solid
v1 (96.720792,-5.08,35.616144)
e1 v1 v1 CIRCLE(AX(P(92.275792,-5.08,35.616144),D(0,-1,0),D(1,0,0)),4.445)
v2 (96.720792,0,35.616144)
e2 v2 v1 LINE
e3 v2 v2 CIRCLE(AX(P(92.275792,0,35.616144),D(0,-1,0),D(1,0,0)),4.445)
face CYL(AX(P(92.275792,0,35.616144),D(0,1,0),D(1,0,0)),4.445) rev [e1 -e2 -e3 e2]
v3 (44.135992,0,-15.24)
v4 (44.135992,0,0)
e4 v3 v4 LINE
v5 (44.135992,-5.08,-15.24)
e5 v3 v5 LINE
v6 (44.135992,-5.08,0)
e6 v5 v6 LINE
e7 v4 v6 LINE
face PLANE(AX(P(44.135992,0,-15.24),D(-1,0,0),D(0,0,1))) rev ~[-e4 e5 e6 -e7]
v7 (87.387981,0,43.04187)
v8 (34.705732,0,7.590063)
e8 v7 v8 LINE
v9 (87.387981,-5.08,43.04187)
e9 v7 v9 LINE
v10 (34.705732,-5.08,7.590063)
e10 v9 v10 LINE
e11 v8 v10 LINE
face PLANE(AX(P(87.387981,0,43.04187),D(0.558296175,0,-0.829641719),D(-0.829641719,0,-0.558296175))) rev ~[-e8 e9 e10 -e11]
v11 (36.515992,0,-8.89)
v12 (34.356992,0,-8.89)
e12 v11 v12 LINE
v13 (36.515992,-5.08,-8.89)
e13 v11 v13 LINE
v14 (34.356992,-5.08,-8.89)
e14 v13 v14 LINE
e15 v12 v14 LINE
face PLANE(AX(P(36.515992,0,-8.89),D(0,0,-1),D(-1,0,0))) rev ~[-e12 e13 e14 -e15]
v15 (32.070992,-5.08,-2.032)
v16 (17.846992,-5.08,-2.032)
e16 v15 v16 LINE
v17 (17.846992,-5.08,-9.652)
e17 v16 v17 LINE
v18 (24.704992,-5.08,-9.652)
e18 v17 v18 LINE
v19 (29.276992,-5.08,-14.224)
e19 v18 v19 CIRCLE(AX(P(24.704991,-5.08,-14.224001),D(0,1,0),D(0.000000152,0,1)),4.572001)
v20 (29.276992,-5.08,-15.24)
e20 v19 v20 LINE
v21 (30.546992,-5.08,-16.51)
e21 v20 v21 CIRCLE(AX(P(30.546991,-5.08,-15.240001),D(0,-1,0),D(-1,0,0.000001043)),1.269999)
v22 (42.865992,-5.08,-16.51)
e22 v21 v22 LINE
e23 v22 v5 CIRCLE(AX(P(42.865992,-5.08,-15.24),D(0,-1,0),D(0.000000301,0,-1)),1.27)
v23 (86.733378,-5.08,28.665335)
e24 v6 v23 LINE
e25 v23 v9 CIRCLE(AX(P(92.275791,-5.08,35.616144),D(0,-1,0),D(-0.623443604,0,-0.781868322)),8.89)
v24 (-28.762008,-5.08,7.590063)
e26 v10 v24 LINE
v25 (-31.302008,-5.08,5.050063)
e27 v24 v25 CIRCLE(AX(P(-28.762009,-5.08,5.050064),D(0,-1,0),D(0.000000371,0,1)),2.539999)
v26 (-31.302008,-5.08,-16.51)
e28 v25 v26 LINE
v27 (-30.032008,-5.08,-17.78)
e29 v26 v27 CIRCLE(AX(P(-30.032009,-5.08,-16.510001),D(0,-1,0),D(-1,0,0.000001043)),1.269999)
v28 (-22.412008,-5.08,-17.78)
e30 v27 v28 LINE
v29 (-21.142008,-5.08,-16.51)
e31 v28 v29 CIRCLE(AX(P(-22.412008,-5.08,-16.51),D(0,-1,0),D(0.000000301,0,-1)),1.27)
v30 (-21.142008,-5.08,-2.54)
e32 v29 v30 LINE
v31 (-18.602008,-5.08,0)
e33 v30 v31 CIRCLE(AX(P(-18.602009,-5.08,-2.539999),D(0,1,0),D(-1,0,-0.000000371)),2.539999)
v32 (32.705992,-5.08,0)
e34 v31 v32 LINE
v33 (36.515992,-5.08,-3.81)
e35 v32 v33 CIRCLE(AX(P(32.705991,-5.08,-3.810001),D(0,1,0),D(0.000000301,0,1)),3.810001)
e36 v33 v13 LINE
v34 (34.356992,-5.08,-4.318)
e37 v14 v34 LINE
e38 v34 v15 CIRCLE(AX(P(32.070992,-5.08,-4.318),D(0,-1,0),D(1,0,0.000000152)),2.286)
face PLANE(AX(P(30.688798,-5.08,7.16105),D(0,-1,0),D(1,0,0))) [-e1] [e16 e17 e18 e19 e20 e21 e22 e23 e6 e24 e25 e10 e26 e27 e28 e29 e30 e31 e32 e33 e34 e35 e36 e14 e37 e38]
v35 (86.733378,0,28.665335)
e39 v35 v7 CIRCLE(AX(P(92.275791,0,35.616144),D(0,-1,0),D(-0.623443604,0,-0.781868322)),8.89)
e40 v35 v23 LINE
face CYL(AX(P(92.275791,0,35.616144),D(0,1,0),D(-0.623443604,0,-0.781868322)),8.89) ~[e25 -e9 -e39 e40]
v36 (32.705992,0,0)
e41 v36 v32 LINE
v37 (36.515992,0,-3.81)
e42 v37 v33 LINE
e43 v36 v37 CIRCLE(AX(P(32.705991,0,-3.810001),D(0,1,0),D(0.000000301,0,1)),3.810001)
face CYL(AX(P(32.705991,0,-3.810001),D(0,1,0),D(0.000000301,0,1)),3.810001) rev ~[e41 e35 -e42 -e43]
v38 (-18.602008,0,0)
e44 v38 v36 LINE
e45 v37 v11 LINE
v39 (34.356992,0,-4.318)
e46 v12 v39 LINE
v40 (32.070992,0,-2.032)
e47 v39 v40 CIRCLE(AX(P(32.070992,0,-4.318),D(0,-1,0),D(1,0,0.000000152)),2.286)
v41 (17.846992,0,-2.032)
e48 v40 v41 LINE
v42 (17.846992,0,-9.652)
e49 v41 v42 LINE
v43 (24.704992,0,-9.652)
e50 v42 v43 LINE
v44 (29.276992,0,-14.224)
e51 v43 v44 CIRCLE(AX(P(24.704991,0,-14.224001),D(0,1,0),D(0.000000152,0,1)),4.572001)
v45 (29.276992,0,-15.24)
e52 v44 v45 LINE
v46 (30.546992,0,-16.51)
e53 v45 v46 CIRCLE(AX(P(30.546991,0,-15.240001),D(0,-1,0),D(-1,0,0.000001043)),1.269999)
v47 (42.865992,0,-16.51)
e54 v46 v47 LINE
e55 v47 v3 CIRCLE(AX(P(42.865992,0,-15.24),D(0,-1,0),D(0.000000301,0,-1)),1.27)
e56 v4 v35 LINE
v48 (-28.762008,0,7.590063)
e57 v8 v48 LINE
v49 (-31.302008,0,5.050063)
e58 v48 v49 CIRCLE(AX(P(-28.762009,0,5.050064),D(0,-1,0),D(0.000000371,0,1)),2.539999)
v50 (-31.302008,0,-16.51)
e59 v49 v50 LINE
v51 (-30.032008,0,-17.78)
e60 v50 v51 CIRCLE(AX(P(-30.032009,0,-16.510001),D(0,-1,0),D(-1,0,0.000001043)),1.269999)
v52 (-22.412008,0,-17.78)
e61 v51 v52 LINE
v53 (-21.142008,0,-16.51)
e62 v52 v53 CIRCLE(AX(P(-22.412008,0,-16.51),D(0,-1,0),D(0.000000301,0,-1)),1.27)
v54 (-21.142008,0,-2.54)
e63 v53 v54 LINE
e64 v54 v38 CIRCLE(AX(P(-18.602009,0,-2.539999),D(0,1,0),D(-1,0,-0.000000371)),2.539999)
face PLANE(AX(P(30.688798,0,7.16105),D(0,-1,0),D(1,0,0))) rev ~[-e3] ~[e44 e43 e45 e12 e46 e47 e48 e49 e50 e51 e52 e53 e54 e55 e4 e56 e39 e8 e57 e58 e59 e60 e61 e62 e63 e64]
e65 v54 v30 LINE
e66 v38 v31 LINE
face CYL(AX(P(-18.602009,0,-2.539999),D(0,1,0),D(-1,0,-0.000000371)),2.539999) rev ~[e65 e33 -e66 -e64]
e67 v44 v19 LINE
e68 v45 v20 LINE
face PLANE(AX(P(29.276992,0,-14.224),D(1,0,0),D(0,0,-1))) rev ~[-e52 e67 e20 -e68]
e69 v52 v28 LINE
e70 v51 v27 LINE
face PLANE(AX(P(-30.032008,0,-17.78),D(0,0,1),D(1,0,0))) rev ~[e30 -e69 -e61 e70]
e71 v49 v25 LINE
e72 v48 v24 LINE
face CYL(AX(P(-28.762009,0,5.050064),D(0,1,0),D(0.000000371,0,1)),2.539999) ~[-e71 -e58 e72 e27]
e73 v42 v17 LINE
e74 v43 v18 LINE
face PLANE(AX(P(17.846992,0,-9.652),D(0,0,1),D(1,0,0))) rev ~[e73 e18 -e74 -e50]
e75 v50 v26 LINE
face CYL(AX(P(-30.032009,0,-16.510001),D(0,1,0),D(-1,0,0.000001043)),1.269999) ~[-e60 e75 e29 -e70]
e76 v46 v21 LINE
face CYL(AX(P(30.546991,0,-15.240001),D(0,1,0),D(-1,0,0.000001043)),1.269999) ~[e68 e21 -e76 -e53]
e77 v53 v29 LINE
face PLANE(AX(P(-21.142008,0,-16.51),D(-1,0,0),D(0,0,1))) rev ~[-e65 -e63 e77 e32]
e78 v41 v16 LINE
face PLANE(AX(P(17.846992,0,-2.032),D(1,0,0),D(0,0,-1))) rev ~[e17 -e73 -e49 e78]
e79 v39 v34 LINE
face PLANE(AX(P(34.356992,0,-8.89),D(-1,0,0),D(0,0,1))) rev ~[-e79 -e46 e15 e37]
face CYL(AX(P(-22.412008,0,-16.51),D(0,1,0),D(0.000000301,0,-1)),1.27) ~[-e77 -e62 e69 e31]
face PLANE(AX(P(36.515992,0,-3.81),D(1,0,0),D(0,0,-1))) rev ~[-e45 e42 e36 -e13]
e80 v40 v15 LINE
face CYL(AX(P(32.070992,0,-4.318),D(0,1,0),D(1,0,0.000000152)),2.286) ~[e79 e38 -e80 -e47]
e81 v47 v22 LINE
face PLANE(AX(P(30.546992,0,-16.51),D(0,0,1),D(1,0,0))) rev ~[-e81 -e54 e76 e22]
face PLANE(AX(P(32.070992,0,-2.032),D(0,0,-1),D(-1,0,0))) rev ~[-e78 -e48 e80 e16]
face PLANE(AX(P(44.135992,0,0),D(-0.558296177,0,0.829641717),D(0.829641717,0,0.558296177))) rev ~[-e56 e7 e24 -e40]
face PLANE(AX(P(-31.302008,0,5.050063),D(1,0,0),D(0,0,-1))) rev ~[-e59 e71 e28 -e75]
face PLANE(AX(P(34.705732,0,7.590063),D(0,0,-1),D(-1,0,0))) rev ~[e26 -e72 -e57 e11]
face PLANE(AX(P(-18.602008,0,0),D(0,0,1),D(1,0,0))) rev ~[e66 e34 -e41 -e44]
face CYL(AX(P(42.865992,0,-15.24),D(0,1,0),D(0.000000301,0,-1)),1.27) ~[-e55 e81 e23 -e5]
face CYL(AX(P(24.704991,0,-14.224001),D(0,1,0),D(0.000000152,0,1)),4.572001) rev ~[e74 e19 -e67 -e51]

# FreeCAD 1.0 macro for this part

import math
import FreeCAD as App
import Part
import Sketcher
Q = App.Units.Quantity

doc = App.newDocument("Part")
body = doc.addObject("PartDesign::Body", "Body")

# Sketch on XZ plane
sketch1 = body.newObject("Sketcher::SketchObject", "Sketch")
sketch1.AttachmentSupport = (doc.getObject("XZ_Plane"), [""])
sketch1.MapMode = "FlatFace"
sketch1.addGeometry([
    Part.ArcOfCircle(Part.Circle(App.Vector(-18.6, -2.5, 0), App.Vector(0, 0, 1), 2.5), math.radians(90), math.radians(180)),  # 0
    Part.LineSegment(App.Vector(-18.6, 0, 0), App.Vector(32.7, 0, 0)),  # 1
    Part.ArcOfCircle(Part.Circle(App.Vector(32.7, -3.8, 0), App.Vector(0, 0, 1), 3.8), math.radians(0), math.radians(90)),  # 2
    Part.LineSegment(App.Vector(36.5, -3.8, 0), App.Vector(36.5, -8.9, 0)),  # 3
    Part.LineSegment(App.Vector(36.5, -8.9, 0), App.Vector(34.4, -8.9, 0)),  # 4
    Part.LineSegment(App.Vector(34.4, -8.9, 0), App.Vector(34.4, -4.3, 0)),  # 5
    Part.ArcOfCircle(Part.Circle(App.Vector(32.1, -4.3, 0), App.Vector(0, 0, 1), 2.3), math.radians(0), math.radians(90)),  # 6
    Part.LineSegment(App.Vector(32.1, -2, 0), App.Vector(17.8, -2, 0)),  # 7
    Part.LineSegment(App.Vector(17.8, -2, 0), App.Vector(17.8, -9.7, 0)),  # 8
    Part.LineSegment(App.Vector(17.8, -9.7, 0), App.Vector(24.7, -9.7, 0)),  # 9
    Part.ArcOfCircle(Part.Circle(App.Vector(24.7, -14.2, 0), App.Vector(0, 0, 1), 4.6), math.radians(0), math.radians(90)),  # 10
    Part.LineSegment(App.Vector(29.3, -14.2, 0), App.Vector(29.3, -15.2, 0)),  # 11
    Part.ArcOfCircle(Part.Circle(App.Vector(30.5, -15.2, 0), App.Vector(0, 0, 1), 1.3), math.radians(180), math.radians(270)),  # 12
    Part.LineSegment(App.Vector(30.5, -16.5, 0), App.Vector(42.9, -16.5, 0)),  # 13
    Part.ArcOfCircle(Part.Circle(App.Vector(42.9, -15.2, 0), App.Vector(0, 0, 1), 1.3), math.radians(-90), math.radians(0)),  # 14
    Part.LineSegment(App.Vector(44.1, -15.2, 0), App.Vector(44.1, 0, 0)),  # 15
    Part.LineSegment(App.Vector(44.1, 0, 0), App.Vector(86.7, 28.7, 0)),  # 16
    Part.ArcOfCircle(Part.Circle(App.Vector(92.3, 35.6, 0), App.Vector(0, 0, 1), 8.9), math.radians(-129), math.radians(123)),  # 17
    Part.LineSegment(App.Vector(87.4, 43, 0), App.Vector(34.7, 7.6, 0)),  # 18
    Part.LineSegment(App.Vector(34.7, 7.6, 0), App.Vector(-28.8, 7.6, 0)),  # 19
    Part.ArcOfCircle(Part.Circle(App.Vector(-28.8, 5.1, 0), App.Vector(0, 0, 1), 2.5), math.radians(90), math.radians(180)),  # 20
    Part.LineSegment(App.Vector(-31.3, 5.1, 0), App.Vector(-31.3, -16.5, 0)),  # 21
    Part.ArcOfCircle(Part.Circle(App.Vector(-30, -16.5, 0), App.Vector(0, 0, 1), 1.3), math.radians(180), math.radians(270)),  # 22
    Part.LineSegment(App.Vector(-30, -17.8, 0), App.Vector(-22.4, -17.8, 0)),  # 23
    Part.ArcOfCircle(Part.Circle(App.Vector(-22.4, -16.5, 0), App.Vector(0, 0, 1), 1.3), math.radians(-90), math.radians(0)),  # 24
    Part.LineSegment(App.Vector(-21.1, -16.5, 0), App.Vector(-21.1, -2.5, 0)),  # 25
    Part.Circle(App.Vector(92.3, 35.6, 0), App.Vector(0, 0, 1), 4.4),  # 26
], False)
sketch1.addConstraint([
    Sketcher.Constraint("Tangent", 0, 1, 1, 1),
    Sketcher.Constraint("Tangent", 1, 2, 2, 2),
    Sketcher.Constraint("Tangent", 2, 1, 3, 1),
    Sketcher.Constraint("Coincident", 3, 2, 4, 1),
    Sketcher.Constraint("Coincident", 4, 2, 5, 1),
    Sketcher.Constraint("Tangent", 5, 2, 6, 1),
    Sketcher.Constraint("Tangent", 6, 2, 7, 1),
    Sketcher.Constraint("Coincident", 7, 2, 8, 1),
    Sketcher.Constraint("Coincident", 8, 2, 9, 1),
    Sketcher.Constraint("Tangent", 9, 2, 10, 2),
    Sketcher.Constraint("Tangent", 10, 1, 11, 1),
    Sketcher.Constraint("Tangent", 11, 2, 12, 1),
    Sketcher.Constraint("Tangent", 12, 2, 13, 1),
    Sketcher.Constraint("Tangent", 13, 2, 14, 1),
    Sketcher.Constraint("Tangent", 14, 2, 15, 1),
    Sketcher.Constraint("Coincident", 15, 2, 16, 1),
    Sketcher.Constraint("Coincident", 16, 2, 17, 1),
    Sketcher.Constraint("Coincident", 17, 2, 18, 1),
    Sketcher.Constraint("Coincident", 18, 2, 19, 1),
    Sketcher.Constraint("Tangent", 19, 2, 20, 1),
    Sketcher.Constraint("Tangent", 20, 2, 21, 1),
    Sketcher.Constraint("Tangent", 21, 2, 22, 1),
    Sketcher.Constraint("Tangent", 22, 2, 23, 1),
    Sketcher.Constraint("Tangent", 23, 2, 24, 1),
    Sketcher.Constraint("Tangent", 24, 2, 25, 1),
    Sketcher.Constraint("Tangent", 25, 2, 0, 2),
    Sketcher.Constraint("Horizontal", 1),
    Sketcher.Constraint("Vertical", 3),
    Sketcher.Constraint("Horizontal", 4),
    Sketcher.Constraint("Vertical", 5),
    Sketcher.Constraint("Horizontal", 7),
    Sketcher.Constraint("Vertical", 8),
    Sketcher.Constraint("Horizontal", 9),
    Sketcher.Constraint("Vertical", 11),
    Sketcher.Constraint("Horizontal", 13),
    Sketcher.Constraint("Vertical", 15),
    Sketcher.Constraint("Horizontal", 19),
    Sketcher.Constraint("Vertical", 21),
    Sketcher.Constraint("Horizontal", 23),
    Sketcher.Constraint("Vertical", 25),
    Sketcher.Constraint("Coincident", 26, 3, 17, 3),
    Sketcher.Constraint("Equal", 12, 14),
    Sketcher.Constraint("Equal", 0, 20),
    Sketcher.Constraint("Equal", 14, 22),
    Sketcher.Constraint("Equal", 22, 24),
    Sketcher.Constraint("PointOnObject", 0, 1, -1),
    Sketcher.Constraint("PointOnObject", 15, 2, -1),
    Sketcher.Constraint("Parallel", 16, 18),
    Sketcher.Constraint("Horizontal", 24, 3, 12, 2),
    Sketcher.Constraint("Equal", 23, 8),
    Sketcher.Constraint("Radius", 0, Q("0.1 in")),
    Sketcher.Constraint("Diameter", 26, Q("0.35 in")),
    Sketcher.Constraint("Radius", 2, Q("0.15 in")),
    Sketcher.Constraint("Radius", 6, Q("0.09 in")),
    Sketcher.Constraint("Radius", 10, Q("0.18 in")),
    Sketcher.Constraint("Radius", 12, Q("0.0499999 in")),
    Sketcher.Constraint("Radius", 17, Q("0.35 in")),
    Sketcher.Constraint("DistanceX", 23, 1, 23, 2, Q("0.3 in")),
    Sketcher.Constraint("DistanceY", 3, 2, 3, 1, Q("0.2 in")),
    Sketcher.Constraint("DistanceY", 15, 1, 15, 2, Q("0.6 in")),
    Sketcher.Constraint("Distance", 18, Q("2.5 in")),
    Sketcher.Constraint("DistanceX", 1, 1, 1, 2, Q("2.02 in")),
    Sketcher.Constraint("DistanceX", 7, 2, 7, 1, Q("0.56 in")),
    Sketcher.Constraint("DistanceX", 9, 1, 9, 2, Q("0.27 in")),
    Sketcher.Constraint("DistanceY", 5, 1, 5, 2, Q("0.18 in")),
    Sketcher.Constraint("DistanceX", 2, 3, 14, 3, Q("0.4 in")),
    Sketcher.Constraint("DistanceX", 4, 2, 4, 1, Q("0.085 in")),
    Sketcher.Constraint("DistanceX", -1, 1, 16, 2, Q("3.4146999 in")),
    Sketcher.Constraint("DistanceX", 19, 2, 19, 1, Q("63.46774 mm")),
    Sketcher.Constraint("DistanceX", 14, 3, 17, 3, Q("49.4098 mm")),
    Sketcher.Constraint("DistanceY", 21, 2, 21, 1, Q("21.560063 mm")),
    Sketcher.Constraint("DistanceX", 0, 3, -1, 1, Q("18.602009 mm")),
])
pad1 = body.newObject("PartDesign::Pad", "Pad")
pad1.Profile = sketch1
pad1.Length = Q("0.2 in")

doc.recompute()
